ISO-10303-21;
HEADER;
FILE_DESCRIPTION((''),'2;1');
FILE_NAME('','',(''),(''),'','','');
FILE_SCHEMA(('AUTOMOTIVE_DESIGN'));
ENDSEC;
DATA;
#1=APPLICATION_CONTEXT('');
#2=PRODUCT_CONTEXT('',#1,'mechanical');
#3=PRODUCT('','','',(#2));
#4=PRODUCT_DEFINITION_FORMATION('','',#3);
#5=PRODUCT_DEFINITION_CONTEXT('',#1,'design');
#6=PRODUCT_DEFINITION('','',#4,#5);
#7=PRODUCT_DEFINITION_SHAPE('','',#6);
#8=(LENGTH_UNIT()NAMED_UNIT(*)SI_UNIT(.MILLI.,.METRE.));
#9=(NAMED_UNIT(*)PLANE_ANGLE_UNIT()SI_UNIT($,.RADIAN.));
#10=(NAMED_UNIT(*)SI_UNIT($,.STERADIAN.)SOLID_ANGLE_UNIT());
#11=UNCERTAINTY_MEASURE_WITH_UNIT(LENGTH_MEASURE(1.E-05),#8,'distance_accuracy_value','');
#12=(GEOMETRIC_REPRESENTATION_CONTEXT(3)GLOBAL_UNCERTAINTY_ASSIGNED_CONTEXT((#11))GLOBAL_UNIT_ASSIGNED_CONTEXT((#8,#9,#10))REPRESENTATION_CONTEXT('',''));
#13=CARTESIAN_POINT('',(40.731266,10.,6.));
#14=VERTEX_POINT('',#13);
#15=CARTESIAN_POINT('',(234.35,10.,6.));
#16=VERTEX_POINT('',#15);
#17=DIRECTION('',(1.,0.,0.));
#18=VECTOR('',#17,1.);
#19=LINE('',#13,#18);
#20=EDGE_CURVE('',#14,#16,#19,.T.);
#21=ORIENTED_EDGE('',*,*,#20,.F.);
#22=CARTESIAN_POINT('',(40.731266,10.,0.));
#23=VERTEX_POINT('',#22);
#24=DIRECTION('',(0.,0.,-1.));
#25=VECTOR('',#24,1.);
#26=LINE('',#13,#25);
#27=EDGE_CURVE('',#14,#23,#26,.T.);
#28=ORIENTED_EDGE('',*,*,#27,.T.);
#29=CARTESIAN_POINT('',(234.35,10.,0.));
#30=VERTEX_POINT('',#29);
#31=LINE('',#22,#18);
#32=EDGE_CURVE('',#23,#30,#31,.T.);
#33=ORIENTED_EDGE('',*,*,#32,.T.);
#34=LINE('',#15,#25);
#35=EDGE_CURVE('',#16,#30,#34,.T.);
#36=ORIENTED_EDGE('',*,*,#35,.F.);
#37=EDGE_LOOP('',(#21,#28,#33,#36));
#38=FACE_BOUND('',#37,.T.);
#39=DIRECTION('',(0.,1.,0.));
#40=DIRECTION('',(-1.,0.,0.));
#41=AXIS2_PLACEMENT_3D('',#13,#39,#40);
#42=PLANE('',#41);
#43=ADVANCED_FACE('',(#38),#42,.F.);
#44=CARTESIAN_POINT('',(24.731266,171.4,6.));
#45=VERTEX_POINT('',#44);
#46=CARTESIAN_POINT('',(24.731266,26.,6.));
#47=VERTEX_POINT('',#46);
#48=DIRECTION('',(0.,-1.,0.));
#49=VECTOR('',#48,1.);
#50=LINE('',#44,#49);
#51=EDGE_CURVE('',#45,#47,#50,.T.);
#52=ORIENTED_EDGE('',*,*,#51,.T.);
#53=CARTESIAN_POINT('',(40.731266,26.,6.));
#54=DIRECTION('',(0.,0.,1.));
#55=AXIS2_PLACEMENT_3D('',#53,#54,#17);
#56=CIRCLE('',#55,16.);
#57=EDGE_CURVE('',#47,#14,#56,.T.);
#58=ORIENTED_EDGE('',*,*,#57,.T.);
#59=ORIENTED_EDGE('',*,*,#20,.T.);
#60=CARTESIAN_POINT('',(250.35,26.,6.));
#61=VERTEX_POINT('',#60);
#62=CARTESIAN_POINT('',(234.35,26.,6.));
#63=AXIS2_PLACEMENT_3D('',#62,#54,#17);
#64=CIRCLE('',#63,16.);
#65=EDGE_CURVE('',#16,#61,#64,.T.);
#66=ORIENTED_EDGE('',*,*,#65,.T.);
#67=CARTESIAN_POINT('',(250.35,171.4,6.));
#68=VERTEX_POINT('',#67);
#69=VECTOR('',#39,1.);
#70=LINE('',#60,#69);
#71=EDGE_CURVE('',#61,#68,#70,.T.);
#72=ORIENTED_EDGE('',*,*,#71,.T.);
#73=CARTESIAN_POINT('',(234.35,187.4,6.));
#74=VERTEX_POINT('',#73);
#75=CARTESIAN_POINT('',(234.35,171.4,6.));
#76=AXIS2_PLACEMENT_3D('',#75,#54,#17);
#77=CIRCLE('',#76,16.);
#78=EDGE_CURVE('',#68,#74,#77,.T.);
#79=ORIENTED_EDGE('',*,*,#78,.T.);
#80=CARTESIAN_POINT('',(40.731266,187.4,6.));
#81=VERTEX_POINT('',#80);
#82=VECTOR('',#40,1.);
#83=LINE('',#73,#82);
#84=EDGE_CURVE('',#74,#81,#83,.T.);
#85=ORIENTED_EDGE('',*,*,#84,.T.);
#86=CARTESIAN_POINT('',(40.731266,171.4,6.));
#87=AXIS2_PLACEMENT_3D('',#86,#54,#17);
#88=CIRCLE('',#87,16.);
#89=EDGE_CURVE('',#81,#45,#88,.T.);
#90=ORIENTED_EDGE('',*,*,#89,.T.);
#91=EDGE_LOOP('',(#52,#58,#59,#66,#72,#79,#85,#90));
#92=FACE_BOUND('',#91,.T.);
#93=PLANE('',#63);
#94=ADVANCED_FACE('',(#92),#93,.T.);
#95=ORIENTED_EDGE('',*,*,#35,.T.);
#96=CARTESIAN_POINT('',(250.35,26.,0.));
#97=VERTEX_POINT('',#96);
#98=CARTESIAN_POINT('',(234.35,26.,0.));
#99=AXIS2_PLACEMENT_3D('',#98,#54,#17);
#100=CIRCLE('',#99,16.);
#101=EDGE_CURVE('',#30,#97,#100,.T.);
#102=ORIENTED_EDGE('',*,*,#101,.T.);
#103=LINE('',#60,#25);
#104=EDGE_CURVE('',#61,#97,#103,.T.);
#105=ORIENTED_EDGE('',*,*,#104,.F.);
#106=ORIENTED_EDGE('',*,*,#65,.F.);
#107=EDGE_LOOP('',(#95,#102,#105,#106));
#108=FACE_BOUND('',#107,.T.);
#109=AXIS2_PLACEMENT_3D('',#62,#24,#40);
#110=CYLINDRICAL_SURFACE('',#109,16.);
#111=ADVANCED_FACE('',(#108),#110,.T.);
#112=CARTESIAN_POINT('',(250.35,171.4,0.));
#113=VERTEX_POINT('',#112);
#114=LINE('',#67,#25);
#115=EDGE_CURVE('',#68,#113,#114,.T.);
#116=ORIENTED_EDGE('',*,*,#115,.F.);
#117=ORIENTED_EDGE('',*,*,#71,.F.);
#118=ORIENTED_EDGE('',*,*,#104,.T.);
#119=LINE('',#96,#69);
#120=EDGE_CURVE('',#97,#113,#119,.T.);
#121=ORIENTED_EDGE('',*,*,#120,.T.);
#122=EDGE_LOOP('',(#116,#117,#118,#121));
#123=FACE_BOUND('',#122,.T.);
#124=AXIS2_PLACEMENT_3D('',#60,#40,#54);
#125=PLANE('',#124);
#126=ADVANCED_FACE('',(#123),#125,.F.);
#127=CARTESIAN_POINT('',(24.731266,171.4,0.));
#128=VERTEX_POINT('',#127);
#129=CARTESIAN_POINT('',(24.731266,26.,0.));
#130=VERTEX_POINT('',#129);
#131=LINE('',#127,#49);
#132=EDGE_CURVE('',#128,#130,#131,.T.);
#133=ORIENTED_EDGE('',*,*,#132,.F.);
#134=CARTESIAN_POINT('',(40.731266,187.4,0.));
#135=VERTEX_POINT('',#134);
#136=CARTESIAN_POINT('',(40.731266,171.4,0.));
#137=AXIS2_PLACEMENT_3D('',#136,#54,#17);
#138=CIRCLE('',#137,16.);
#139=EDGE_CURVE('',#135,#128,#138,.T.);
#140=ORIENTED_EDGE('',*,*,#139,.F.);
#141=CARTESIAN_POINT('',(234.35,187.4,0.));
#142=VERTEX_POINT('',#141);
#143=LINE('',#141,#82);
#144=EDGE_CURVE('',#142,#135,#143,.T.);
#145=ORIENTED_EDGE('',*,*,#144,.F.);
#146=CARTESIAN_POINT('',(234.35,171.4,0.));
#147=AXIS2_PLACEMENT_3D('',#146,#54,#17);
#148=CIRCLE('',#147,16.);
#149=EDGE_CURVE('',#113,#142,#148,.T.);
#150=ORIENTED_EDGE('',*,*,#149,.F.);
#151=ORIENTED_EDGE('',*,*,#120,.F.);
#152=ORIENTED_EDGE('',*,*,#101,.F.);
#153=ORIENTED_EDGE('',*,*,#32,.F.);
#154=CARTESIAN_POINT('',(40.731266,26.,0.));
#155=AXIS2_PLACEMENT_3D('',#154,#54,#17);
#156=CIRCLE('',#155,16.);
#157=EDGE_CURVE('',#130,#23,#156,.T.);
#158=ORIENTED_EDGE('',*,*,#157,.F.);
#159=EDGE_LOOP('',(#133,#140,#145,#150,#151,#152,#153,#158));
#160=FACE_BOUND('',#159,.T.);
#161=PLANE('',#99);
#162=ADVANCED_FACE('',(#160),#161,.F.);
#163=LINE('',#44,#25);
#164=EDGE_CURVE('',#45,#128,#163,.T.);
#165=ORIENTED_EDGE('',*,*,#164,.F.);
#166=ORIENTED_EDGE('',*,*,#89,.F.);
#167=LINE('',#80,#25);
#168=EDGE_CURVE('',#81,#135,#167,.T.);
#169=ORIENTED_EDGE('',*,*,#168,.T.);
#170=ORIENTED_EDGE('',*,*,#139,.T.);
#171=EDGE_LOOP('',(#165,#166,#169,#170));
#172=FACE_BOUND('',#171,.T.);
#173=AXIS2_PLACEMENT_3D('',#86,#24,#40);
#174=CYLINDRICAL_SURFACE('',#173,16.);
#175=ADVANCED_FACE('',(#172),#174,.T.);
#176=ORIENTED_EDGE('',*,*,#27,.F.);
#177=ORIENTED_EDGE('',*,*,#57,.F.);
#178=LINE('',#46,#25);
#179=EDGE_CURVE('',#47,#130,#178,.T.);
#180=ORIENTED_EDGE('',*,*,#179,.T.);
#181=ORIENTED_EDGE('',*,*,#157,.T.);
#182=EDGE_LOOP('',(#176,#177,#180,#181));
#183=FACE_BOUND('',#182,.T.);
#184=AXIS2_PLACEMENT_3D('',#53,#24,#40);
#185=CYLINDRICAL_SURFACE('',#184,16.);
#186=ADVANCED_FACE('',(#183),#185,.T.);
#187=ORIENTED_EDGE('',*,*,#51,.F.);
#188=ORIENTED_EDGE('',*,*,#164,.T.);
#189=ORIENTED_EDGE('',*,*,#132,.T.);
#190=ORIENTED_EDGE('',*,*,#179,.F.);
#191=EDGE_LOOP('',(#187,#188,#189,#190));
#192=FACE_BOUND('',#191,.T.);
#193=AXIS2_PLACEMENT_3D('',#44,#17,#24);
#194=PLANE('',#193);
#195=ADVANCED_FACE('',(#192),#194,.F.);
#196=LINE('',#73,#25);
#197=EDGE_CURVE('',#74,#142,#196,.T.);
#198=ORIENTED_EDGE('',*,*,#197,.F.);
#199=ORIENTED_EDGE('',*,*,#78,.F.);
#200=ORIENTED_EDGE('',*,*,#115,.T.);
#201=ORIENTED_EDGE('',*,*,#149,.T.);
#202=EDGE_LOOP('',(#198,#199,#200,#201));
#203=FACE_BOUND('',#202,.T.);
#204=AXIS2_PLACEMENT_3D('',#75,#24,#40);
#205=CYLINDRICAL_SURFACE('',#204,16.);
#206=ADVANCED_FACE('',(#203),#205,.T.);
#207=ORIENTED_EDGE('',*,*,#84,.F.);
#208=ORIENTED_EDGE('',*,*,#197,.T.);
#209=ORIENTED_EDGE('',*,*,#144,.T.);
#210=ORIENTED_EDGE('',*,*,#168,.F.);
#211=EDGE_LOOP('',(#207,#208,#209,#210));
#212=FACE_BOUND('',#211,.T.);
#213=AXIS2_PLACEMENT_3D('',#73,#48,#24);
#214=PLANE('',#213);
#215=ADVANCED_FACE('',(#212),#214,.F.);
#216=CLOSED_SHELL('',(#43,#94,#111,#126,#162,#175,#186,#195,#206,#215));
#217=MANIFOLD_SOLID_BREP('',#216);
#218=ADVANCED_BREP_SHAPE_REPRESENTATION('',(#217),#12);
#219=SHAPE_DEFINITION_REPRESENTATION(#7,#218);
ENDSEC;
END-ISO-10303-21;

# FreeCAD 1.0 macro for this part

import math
import FreeCAD as App
import Part
import Sketcher

V = App.Vector

doc = App.newDocument("Part")
body = doc.addObject("PartDesign::Body", "Body")

sketch1 = doc.addObject("Sketcher::SketchObject", "Sketch")
body.addObject(sketch1)
sketch1.AttachmentSupport = (doc.XY_Plane, [""])
sketch1.MapMode = "FlatFace"
sketch1.addGeometry(Part.LineSegment(V(250, 26, 0), V(250, 171, 0)), False)
sketch1.addGeometry(Part.ArcOfCircle(Part.Circle(V(234, 171, 0), V(0, 0, 1), 16), math.radians(0), math.radians(90)), False)
sketch1.addGeometry(Part.LineSegment(V(234, 187, 0), V(41, 187, 0)), False)
sketch1.addGeometry(Part.ArcOfCircle(Part.Circle(V(41, 171, 0), V(0, 0, 1), 16), math.radians(90), math.radians(180)), False)
sketch1.addGeometry(Part.LineSegment(V(25, 171, 0), V(25, 26, 0)), False)
sketch1.addGeometry(Part.ArcOfCircle(Part.Circle(V(41, 26, 0), V(0, 0, 1), 16), math.radians(180), math.radians(270)), False)
sketch1.addGeometry(Part.LineSegment(V(41, 10, 0), V(234, 10, 0)), False)
sketch1.addGeometry(Part.ArcOfCircle(Part.Circle(V(234, 26, 0), V(0, 0, 1), 16), math.radians(-90), math.radians(0)), False)
sketch1.addConstraint(Sketcher.Constraint("Tangent", 0, 2, 1, 1))
sketch1.addConstraint(Sketcher.Constraint("Tangent", 1, 2, 2, 1))
sketch1.addConstraint(Sketcher.Constraint("Tangent", 2, 2, 3, 1))
sketch1.addConstraint(Sketcher.Constraint("Tangent", 3, 2, 4, 1))
sketch1.addConstraint(Sketcher.Constraint("Tangent", 4, 2, 5, 1))
sketch1.addConstraint(Sketcher.Constraint("Tangent", 5, 2, 6, 1))
sketch1.addConstraint(Sketcher.Constraint("Tangent", 6, 2, 7, 1))
sketch1.addConstraint(Sketcher.Constraint("Tangent", 7, 2, 0, 1))
sketch1.addConstraint(Sketcher.Constraint("Vertical", 0))
sketch1.addConstraint(Sketcher.Constraint("Horizontal", 2))
sketch1.addConstraint(Sketcher.Constraint("Vertical", 4))
sketch1.addConstraint(Sketcher.Constraint("Horizontal", 6))
sketch1.addConstraint(Sketcher.Constraint("Equal", 1, 3))
sketch1.addConstraint(Sketcher.Constraint("Equal", 3, 5))
sketch1.addConstraint(Sketcher.Constraint("Equal", 5, 7))
sketch1.addConstraint(Sketcher.Constraint("Radius", 1, 16.0))
sketch1.addConstraint(Sketcher.Constraint("DistanceY", 0, 1, 0, 2, 145.4))
sketch1.addConstraint(Sketcher.Constraint("DistanceY", -1, 1, 5, 3, 26.0))
sketch1.addConstraint(Sketcher.Constraint("DistanceX", -1, 1, 1, 3, 234.35))
sketch1.addConstraint(Sketcher.Constraint("DistanceX", 2, 2, 2, 1, 193.618734))
pad1 = doc.addObject("PartDesign::Pad", "Pad")
body.addObject(pad1)
pad1.Profile = sketch1
pad1.Length = 6

doc.recompute()
